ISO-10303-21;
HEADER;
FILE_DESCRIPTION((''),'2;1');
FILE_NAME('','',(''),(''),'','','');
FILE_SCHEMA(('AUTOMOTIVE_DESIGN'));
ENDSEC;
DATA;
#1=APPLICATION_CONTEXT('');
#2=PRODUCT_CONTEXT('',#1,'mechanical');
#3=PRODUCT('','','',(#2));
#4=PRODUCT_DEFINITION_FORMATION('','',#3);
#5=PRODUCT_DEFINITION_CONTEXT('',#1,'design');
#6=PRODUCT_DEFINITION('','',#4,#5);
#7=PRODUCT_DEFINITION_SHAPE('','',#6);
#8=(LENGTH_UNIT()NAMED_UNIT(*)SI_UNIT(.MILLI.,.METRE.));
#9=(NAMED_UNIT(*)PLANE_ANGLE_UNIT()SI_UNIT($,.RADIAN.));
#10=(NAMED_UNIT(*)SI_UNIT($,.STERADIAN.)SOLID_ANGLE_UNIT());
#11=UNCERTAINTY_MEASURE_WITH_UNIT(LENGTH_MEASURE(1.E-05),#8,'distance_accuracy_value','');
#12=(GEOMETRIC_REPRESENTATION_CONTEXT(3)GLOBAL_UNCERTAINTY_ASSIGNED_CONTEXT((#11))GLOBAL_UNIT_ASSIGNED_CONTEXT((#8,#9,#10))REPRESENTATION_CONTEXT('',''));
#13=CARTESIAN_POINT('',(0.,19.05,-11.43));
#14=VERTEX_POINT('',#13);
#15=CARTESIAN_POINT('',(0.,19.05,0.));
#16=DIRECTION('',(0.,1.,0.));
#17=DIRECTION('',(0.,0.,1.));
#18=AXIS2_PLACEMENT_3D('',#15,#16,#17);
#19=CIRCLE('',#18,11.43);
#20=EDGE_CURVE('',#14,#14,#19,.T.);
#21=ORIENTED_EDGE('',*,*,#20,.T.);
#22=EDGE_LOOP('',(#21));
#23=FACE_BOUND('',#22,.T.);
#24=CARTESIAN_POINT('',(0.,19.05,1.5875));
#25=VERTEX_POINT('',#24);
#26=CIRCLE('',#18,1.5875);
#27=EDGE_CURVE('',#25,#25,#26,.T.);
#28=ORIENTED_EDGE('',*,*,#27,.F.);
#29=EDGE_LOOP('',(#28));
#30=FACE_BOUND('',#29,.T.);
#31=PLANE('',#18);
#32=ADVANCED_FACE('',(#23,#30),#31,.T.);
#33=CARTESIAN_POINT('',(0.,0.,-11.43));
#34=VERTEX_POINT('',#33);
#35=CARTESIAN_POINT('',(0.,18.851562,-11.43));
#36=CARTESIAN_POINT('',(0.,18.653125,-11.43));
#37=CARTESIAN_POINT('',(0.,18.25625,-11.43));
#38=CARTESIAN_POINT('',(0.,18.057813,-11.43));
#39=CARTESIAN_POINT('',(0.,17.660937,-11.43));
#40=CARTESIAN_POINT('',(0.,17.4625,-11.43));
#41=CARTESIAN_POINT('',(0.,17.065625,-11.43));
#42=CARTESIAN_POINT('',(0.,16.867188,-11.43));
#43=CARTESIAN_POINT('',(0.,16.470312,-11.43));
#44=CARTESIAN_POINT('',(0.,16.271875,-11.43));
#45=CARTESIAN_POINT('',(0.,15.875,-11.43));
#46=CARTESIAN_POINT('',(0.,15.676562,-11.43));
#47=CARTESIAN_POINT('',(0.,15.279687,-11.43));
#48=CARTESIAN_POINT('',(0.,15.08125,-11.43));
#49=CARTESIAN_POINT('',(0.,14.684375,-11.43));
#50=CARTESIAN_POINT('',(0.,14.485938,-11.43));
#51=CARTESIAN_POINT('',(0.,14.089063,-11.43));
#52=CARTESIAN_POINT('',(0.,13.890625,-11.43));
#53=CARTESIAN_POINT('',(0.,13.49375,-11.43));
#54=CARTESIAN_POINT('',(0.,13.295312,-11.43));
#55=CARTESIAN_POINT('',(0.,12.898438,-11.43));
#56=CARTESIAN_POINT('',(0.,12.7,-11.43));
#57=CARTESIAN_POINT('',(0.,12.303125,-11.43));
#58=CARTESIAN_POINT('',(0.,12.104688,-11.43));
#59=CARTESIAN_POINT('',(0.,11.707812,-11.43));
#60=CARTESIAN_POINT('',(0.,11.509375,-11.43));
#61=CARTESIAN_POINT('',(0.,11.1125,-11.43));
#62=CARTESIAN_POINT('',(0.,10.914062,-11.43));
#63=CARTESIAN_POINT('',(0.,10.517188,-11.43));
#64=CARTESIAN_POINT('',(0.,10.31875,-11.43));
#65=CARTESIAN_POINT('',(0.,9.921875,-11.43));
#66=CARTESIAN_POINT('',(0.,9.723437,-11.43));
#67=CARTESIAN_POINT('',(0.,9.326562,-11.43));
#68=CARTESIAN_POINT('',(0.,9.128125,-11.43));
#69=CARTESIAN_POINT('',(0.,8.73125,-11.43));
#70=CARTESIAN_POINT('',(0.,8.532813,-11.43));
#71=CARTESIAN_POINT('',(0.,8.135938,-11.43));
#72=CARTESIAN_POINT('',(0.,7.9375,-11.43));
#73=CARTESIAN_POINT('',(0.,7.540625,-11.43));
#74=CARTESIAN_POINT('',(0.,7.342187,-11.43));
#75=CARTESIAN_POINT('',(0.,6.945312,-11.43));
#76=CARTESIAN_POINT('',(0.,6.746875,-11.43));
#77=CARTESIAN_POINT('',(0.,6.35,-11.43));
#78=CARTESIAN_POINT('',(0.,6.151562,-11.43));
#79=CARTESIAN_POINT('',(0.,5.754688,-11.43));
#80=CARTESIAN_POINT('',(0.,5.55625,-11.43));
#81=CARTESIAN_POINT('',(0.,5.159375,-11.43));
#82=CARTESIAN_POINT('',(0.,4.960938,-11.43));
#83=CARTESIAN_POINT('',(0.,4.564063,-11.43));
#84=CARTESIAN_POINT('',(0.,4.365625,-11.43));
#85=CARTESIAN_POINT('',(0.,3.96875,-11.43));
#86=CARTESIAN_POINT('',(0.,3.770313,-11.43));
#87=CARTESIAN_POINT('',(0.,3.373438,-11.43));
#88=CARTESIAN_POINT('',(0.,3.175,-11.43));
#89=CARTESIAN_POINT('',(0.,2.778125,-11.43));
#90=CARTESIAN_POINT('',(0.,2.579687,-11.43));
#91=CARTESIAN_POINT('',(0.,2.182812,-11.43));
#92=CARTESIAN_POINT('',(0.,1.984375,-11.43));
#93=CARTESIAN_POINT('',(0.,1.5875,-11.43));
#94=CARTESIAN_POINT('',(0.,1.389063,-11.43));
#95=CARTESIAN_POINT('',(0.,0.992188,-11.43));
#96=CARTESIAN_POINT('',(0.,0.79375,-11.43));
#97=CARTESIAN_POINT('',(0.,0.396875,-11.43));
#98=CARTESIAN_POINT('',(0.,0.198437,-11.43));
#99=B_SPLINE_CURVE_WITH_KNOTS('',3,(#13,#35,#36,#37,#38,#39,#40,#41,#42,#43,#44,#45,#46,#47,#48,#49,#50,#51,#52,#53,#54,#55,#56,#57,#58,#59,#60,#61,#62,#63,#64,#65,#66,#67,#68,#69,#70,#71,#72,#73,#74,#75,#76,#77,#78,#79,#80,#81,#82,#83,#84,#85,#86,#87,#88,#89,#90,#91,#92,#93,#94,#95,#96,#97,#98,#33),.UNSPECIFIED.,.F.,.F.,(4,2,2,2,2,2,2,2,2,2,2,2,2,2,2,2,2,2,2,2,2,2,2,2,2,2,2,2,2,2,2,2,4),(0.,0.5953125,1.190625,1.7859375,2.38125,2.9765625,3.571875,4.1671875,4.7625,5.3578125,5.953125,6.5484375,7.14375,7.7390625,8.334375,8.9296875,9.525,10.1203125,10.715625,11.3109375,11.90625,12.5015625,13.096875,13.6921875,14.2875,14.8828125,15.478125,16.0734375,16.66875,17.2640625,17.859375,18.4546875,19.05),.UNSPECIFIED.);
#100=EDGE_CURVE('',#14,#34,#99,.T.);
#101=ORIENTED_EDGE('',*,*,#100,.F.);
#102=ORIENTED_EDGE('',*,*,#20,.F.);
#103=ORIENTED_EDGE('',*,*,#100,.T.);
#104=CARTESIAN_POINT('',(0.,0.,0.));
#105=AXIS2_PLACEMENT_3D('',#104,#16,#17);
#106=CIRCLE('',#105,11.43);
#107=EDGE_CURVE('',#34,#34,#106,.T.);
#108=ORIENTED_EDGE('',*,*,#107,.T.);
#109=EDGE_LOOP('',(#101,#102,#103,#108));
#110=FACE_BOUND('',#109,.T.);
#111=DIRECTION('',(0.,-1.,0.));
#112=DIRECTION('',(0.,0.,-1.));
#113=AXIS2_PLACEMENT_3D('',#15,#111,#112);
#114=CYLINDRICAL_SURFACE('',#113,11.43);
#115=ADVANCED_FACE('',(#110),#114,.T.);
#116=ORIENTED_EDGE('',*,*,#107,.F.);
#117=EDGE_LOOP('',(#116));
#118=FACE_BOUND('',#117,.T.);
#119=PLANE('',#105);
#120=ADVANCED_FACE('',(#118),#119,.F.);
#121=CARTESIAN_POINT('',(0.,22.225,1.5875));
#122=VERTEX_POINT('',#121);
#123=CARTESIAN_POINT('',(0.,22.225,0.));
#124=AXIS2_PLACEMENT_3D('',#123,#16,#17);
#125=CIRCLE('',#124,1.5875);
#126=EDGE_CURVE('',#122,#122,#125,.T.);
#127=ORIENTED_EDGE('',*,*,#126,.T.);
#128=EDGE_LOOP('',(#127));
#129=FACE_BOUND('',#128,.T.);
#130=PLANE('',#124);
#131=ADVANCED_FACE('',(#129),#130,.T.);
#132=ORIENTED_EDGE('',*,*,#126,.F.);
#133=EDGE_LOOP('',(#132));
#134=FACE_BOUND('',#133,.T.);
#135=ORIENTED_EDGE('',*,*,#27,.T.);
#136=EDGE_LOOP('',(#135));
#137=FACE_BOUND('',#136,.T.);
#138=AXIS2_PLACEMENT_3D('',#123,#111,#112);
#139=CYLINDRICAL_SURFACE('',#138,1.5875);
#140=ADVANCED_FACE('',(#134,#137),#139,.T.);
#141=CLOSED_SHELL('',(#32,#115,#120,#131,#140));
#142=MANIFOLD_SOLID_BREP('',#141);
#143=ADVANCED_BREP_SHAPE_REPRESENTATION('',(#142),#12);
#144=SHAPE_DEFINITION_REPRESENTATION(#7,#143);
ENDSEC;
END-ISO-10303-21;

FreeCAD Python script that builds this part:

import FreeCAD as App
import Part
import Sketcher
Q = App.Units.Quantity

doc = App.newDocument("Part")
params = doc.addObject("Spreadsheet::Sheet", "Params")
for row, (alias, value) in enumerate([
    ("sketch1_diameter", "0.9 in"),
    ("pad1_length", "0.75 in"),
    ("sketch2_diameter", "0.125 in"),
    ("pad2_length", "0.125 in"),
], start=1):
    params.set(f"A{row}", alias)
    params.set(f"B{row}", "=" + value)
    params.setAlias(f"B{row}", alias)

body = doc.addObject("PartDesign::Body", "Body")

# Sketch on XZ plane
sketch1 = doc.addObject("Sketcher::SketchObject", "Sketch")
body.addObject(sketch1)
sketch1.AttachmentSupport = (doc.XZ_Plane, [""])
sketch1.MapMode = "FlatFace"
sketch1.addGeometry(Part.Circle(App.Vector(0, 0, 0), App.Vector(0, 0, 1), 11), False)
sketch1.addConstraint(Sketcher.Constraint("Coincident", 0, 3, -1, 1))
sketch1.addConstraint(Sketcher.Constraint("Diameter", 0, Q("0.9 in")))
sketch1.setExpression("Constraints[1]", "Params.sketch1_diameter")
pad1 = doc.addObject("PartDesign::Pad", "Pad")
body.addObject(pad1)
pad1.Profile = sketch1
pad1.setExpression("Length", "Params.pad1_length")
pad1.Reversed = True

# Sketch on XZ plane
sketch2 = doc.addObject("Sketcher::SketchObject", "Sketch001")
body.addObject(sketch2)
sketch2.AttachmentSupport = (doc.XZ_Plane, [""])
sketch2.MapMode = "FlatFace"
sketch2.AttachmentOffset = App.Placement(App.Vector(0, 0, -0.75 * 25.4), App.Rotation())
sketch2.addGeometry(Part.Circle(App.Vector(0, 0, 0), App.Vector(0, 0, 1), 1.6), False)
sketch2.addConstraint(Sketcher.Constraint("Coincident", 0, 3, -1, 1))
sketch2.addConstraint(Sketcher.Constraint("Diameter", 0, Q("0.125 in")))
sketch2.setExpression("Constraints[1]", "Params.sketch2_diameter")
pad2 = doc.addObject("PartDesign::Pad", "Pad001")
body.addObject(pad2)
pad2.Profile = sketch2
pad2.setExpression("Length", "Params.pad2_length")
pad2.Reversed = True

doc.recompute()
